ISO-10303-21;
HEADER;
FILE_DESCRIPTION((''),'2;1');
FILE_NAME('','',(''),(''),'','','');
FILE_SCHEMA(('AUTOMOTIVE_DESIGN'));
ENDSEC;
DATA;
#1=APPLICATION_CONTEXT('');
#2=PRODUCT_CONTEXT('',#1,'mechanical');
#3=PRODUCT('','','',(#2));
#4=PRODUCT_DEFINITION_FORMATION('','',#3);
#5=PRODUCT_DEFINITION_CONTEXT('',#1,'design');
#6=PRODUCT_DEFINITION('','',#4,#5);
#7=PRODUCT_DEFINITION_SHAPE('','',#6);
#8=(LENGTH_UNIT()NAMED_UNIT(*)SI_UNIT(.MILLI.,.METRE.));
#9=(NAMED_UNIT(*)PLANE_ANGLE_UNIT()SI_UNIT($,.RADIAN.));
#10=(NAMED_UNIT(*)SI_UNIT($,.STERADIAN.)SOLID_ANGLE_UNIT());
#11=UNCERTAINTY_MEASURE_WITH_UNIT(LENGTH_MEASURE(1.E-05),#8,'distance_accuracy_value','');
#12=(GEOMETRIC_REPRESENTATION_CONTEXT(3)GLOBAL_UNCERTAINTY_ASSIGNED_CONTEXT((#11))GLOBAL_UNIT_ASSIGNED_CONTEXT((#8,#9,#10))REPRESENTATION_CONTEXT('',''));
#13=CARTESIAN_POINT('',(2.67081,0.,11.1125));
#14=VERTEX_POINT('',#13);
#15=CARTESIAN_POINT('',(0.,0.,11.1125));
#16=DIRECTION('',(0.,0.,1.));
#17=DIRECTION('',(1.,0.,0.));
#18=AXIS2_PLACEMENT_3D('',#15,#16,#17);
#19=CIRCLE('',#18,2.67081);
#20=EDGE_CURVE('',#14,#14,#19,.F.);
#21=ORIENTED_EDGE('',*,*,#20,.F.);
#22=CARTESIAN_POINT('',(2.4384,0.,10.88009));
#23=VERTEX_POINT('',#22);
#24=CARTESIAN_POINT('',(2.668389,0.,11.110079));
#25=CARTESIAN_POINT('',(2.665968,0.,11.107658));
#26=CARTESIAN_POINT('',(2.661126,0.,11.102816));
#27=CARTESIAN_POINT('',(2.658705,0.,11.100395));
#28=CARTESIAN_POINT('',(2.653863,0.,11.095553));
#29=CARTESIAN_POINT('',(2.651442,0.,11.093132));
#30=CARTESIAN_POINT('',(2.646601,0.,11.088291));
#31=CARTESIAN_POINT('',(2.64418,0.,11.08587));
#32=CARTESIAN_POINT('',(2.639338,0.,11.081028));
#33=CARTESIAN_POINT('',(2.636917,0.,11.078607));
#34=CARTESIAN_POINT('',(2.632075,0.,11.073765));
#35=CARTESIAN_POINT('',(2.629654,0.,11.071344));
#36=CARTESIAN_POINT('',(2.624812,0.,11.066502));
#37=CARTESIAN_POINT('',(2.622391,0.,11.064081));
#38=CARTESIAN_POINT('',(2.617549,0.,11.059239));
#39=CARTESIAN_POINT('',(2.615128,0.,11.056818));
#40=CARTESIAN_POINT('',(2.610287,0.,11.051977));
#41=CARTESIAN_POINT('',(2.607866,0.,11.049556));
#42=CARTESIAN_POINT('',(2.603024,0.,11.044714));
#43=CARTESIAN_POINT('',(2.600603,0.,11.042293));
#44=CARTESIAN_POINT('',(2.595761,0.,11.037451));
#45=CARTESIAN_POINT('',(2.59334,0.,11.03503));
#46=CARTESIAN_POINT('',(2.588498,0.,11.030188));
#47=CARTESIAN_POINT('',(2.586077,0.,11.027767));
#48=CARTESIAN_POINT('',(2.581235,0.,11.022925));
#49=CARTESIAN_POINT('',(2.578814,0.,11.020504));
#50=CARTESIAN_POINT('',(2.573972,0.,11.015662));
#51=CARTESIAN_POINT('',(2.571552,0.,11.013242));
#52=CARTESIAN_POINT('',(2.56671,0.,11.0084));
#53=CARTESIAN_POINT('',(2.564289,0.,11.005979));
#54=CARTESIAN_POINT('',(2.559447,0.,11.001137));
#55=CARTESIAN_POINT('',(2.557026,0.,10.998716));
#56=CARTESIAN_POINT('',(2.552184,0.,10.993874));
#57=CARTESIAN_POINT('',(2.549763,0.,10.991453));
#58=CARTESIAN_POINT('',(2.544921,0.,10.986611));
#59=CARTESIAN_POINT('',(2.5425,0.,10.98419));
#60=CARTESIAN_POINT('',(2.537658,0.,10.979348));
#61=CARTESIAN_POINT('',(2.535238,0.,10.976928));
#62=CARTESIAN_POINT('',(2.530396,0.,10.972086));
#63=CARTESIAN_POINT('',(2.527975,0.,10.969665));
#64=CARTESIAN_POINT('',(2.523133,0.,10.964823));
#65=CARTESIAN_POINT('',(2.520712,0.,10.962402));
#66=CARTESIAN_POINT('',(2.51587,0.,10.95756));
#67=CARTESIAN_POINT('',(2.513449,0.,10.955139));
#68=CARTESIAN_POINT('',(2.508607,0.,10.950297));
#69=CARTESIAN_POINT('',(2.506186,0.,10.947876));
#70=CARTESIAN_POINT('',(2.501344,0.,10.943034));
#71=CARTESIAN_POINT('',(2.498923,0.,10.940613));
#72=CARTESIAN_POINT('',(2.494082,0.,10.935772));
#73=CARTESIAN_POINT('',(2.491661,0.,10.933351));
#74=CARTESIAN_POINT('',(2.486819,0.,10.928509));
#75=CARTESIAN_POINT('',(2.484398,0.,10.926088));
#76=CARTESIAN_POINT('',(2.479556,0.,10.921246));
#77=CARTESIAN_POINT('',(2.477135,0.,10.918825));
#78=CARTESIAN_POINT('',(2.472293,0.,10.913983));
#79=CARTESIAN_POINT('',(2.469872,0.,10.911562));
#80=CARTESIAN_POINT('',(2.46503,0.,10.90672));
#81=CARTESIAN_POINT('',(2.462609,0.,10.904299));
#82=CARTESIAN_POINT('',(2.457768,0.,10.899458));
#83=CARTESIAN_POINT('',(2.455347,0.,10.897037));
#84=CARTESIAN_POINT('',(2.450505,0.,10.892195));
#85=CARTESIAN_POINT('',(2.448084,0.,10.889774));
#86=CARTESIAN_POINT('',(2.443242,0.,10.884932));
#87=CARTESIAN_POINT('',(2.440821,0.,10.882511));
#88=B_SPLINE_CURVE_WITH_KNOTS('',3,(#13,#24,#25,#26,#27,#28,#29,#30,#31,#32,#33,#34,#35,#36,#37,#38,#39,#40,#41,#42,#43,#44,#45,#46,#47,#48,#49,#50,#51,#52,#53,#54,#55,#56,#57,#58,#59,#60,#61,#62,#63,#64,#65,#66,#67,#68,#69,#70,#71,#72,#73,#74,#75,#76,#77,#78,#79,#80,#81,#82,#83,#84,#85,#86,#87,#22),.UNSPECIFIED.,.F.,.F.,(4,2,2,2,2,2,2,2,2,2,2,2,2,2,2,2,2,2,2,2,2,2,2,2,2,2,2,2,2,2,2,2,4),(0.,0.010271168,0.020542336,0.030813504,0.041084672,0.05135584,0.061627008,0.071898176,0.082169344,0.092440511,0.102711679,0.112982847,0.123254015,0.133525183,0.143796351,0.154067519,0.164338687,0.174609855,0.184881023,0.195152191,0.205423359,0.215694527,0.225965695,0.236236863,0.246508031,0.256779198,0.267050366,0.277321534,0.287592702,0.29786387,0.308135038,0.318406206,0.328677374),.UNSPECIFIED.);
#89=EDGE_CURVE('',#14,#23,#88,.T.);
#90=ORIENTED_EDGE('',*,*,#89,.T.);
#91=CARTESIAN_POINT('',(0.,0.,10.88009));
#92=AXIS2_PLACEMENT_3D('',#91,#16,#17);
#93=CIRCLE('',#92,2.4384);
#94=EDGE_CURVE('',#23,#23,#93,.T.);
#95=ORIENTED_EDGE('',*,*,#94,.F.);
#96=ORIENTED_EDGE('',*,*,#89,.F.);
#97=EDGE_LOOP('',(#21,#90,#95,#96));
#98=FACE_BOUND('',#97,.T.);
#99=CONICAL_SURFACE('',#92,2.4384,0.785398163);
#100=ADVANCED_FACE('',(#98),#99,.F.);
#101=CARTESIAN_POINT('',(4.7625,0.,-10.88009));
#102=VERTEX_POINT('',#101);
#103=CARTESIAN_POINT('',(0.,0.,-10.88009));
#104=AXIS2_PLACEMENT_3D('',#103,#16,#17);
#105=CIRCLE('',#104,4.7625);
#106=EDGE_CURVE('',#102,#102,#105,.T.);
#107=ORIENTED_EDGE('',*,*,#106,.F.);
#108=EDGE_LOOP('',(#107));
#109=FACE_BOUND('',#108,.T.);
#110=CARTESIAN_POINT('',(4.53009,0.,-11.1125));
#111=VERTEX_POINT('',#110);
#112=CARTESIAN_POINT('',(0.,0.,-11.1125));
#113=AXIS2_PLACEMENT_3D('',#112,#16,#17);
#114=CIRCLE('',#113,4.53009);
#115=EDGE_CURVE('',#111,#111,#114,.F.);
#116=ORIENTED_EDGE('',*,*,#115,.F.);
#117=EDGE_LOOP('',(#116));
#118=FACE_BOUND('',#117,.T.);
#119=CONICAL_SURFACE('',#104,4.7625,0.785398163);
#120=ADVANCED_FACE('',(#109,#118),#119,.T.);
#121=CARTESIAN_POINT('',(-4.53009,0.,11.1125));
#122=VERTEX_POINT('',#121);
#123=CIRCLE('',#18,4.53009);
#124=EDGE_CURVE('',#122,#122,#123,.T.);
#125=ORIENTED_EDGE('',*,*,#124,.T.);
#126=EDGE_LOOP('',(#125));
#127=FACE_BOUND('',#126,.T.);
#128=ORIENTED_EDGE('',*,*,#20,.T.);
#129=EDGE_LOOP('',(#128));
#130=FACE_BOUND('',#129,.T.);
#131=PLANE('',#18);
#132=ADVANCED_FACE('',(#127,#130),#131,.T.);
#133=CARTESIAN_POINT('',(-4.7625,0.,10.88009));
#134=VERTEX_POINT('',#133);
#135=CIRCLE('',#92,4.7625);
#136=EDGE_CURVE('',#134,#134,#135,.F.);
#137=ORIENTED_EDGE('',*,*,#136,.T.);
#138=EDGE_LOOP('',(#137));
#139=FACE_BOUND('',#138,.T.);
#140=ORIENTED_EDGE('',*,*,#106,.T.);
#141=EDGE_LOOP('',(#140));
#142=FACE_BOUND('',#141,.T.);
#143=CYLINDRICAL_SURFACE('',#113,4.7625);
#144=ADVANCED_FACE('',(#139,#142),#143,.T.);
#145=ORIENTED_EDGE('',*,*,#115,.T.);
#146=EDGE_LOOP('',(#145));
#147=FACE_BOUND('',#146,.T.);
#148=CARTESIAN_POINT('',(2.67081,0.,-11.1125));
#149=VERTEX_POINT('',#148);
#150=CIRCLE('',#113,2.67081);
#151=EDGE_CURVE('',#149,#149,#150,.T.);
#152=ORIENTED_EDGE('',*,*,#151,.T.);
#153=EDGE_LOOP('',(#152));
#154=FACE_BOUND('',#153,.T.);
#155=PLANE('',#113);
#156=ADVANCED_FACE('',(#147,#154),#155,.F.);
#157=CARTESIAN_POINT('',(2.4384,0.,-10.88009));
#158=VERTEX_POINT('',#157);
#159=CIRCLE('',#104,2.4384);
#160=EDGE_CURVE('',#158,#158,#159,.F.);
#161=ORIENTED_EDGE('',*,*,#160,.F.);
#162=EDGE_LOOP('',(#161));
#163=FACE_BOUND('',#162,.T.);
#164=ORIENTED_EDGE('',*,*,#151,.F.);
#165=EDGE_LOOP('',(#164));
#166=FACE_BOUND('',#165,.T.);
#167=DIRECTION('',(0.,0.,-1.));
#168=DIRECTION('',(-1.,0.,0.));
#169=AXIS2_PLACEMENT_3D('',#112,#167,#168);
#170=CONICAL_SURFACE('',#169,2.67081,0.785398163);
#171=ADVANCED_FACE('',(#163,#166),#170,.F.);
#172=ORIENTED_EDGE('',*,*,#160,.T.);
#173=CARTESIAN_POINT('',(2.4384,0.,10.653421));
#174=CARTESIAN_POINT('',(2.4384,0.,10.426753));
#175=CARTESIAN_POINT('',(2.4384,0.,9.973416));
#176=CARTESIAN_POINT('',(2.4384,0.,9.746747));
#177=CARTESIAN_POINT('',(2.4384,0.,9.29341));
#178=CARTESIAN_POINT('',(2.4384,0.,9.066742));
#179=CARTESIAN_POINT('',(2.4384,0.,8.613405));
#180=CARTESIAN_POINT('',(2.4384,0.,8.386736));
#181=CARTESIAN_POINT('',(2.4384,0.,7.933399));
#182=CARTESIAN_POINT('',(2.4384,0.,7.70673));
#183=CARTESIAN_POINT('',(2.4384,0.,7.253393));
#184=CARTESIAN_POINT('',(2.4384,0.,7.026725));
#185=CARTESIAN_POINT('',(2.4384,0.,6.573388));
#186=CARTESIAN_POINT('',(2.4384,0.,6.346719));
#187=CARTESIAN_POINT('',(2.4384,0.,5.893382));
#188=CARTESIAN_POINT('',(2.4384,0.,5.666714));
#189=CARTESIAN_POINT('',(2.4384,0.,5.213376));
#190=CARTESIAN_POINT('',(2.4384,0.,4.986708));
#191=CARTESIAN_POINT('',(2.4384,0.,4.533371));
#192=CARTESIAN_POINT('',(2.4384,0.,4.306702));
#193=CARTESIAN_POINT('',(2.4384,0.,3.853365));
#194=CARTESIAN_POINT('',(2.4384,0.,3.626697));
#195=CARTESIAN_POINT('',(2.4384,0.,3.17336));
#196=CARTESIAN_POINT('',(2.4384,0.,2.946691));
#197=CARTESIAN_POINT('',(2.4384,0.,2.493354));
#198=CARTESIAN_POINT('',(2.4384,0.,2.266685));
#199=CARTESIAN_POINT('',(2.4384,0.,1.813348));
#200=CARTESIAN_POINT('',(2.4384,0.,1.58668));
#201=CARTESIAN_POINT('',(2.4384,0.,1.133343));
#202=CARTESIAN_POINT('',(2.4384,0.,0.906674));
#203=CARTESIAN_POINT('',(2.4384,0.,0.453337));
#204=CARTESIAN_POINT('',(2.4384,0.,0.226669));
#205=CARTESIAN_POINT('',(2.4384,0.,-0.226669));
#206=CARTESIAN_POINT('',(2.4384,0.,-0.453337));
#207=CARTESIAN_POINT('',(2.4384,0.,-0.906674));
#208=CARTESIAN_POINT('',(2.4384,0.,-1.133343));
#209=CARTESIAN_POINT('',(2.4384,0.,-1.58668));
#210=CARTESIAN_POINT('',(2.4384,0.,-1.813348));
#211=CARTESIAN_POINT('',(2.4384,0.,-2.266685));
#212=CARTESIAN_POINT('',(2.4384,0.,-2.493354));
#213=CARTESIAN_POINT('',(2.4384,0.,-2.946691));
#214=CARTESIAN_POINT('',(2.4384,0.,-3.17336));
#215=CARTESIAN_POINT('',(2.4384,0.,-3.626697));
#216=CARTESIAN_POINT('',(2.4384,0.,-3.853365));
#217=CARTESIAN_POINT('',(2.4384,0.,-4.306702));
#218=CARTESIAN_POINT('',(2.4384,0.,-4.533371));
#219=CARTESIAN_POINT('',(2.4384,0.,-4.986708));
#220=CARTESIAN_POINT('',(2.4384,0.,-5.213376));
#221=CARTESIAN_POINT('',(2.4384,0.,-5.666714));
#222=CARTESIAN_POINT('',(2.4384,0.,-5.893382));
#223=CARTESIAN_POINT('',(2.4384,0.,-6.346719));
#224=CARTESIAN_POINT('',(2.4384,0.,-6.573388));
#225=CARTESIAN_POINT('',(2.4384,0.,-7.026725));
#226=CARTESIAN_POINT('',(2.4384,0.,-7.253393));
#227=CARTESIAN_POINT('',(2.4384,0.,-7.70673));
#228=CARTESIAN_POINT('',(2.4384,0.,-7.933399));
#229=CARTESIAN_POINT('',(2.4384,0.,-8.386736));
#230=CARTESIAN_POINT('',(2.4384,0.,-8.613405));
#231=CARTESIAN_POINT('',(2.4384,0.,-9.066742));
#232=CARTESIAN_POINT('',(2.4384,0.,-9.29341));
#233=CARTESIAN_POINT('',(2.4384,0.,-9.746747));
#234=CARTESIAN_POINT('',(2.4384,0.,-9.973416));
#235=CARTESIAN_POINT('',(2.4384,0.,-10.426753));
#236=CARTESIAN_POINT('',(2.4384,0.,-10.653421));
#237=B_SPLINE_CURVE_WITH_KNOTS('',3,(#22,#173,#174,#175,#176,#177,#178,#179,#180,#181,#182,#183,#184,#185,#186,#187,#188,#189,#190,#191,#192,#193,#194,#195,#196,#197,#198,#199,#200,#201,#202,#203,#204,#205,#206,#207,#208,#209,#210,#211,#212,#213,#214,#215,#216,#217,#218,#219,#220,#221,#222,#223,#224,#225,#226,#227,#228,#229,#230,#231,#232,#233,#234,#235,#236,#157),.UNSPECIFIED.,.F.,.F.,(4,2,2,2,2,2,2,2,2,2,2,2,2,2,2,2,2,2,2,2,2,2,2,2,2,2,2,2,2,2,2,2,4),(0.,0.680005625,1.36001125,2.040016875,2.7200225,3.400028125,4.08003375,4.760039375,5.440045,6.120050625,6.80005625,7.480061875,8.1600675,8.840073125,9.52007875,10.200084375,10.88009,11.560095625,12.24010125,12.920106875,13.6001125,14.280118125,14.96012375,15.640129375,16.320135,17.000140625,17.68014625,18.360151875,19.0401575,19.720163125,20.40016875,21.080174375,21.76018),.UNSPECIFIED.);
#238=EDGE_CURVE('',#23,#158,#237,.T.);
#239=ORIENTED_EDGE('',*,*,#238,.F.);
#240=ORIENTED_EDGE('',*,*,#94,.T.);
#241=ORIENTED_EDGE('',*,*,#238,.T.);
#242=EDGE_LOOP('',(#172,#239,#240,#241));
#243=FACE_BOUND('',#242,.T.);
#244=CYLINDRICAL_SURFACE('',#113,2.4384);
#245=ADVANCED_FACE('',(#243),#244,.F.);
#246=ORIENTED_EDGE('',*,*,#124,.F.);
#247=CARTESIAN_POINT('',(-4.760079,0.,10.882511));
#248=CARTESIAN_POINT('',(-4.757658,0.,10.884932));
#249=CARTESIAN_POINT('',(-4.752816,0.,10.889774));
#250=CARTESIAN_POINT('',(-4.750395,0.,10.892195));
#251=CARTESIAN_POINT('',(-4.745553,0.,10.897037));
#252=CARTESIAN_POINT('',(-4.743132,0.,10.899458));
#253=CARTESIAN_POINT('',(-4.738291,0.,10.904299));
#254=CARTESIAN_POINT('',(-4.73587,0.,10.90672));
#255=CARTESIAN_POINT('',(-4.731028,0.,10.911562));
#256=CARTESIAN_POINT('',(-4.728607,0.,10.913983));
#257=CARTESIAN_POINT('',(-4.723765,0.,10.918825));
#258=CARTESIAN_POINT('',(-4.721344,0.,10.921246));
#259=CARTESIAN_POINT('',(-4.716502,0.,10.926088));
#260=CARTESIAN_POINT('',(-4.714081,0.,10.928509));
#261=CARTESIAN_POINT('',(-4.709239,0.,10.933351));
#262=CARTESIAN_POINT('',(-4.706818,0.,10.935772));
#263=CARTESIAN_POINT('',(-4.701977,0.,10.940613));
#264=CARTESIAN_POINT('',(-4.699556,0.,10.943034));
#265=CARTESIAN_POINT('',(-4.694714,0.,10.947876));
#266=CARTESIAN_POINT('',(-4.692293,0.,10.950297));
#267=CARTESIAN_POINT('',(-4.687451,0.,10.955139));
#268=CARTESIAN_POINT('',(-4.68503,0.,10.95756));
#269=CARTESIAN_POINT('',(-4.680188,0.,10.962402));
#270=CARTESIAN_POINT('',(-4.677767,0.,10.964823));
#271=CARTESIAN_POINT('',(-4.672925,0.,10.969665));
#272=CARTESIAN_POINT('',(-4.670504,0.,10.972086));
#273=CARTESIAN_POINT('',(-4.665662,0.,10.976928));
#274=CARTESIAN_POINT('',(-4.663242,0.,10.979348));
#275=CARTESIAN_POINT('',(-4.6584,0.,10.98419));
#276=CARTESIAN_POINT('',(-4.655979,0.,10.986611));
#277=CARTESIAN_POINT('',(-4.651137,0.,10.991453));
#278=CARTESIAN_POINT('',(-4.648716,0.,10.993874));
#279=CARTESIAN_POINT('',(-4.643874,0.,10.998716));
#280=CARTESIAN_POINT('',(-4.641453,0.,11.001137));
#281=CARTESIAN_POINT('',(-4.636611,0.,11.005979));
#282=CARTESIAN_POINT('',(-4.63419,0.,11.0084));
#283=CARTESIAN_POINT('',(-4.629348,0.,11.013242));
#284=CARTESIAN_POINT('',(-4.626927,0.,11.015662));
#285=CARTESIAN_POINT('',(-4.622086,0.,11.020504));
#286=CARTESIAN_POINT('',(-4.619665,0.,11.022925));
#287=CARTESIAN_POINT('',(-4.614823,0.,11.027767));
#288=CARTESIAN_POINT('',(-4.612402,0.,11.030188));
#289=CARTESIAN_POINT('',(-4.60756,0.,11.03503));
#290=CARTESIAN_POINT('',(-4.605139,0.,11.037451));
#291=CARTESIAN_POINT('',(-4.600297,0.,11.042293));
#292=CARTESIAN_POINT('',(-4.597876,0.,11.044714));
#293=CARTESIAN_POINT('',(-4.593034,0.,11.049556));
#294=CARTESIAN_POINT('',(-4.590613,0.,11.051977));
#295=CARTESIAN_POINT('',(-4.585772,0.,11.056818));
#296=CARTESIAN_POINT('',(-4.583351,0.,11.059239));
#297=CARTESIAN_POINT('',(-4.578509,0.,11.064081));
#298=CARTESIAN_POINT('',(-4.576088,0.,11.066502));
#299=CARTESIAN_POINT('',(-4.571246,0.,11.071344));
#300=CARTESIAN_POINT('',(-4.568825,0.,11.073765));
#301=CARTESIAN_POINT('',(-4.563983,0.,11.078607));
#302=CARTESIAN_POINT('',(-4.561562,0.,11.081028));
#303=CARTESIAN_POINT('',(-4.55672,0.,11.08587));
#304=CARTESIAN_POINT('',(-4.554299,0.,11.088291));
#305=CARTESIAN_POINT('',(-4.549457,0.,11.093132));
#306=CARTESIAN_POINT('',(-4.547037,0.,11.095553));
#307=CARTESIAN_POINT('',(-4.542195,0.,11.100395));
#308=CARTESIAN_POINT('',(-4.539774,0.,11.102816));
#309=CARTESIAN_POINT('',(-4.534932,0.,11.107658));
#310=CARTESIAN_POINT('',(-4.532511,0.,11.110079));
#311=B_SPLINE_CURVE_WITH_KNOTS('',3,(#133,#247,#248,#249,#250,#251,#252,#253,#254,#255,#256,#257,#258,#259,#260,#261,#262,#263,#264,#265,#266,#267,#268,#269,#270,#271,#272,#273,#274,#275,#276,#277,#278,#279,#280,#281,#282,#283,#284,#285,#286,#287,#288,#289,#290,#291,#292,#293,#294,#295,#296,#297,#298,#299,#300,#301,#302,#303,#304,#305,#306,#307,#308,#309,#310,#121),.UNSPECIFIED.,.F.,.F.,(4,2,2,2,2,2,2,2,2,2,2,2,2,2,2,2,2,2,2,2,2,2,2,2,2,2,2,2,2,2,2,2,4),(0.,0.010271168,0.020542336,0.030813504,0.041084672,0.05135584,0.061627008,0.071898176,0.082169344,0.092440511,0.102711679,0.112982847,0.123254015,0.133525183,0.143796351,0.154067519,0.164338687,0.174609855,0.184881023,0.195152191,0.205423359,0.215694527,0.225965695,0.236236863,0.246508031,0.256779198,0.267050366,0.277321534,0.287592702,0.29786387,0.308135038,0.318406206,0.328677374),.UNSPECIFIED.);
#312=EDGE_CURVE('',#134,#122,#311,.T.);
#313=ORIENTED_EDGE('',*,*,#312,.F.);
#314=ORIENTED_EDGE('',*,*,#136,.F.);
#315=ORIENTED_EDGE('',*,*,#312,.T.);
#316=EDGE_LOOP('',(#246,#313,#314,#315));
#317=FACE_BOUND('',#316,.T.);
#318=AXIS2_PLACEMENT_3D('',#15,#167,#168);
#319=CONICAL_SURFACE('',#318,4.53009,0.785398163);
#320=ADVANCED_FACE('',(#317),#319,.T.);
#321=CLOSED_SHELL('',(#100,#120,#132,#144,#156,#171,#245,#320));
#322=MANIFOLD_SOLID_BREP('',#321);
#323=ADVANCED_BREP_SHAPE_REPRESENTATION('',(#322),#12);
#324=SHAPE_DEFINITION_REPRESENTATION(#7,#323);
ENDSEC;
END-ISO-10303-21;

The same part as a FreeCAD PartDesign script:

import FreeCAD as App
import Part
import Sketcher
from FreeCAD import Vector
Q = App.Units.Quantity


def edges_at(feature, points):
    """Names of the edges that pass closest to the given points."""
    edges = feature.Shape.Edges
    near = lambda p: min(range(len(edges)), key=lambda i: edges[i].distToShape(Part.Vertex(*p))[0])
    return sorted({f"Edge{near(p) + 1}" for p in points})

doc = App.newDocument("Part")
params = doc.addObject("Spreadsheet::Sheet", "Params")
for row, (alias, value) in enumerate([
    ("sketch1_diameter", "0.375 in"),
    ("sketch1_diameter2", "0.192 in"),
    ("pad1_length", "0.4375 in"),
    ("pad1_length2", "0.4375 in"),
    ("chamfer_size", "0.23241 mm"),
], start=1):
    params.set(f"A{row}", alias)
    params.set(f"B{row}", "=" + value)
    params.setAlias(f"B{row}", alias)

body = doc.addObject("PartDesign::Body", "Body")

# Sketch on XY plane
sketch1 = doc.addObject("Sketcher::SketchObject", "Sketch")
body.addObject(sketch1)
sketch1.AttachmentSupport = (doc.XY_Plane, [""])
sketch1.MapMode = "FlatFace"
sketch1.addGeometry(Part.Circle(Vector(0, 0, 0), Vector(0, 0, 1), 4.8), False)
sketch1.addGeometry(Part.Circle(Vector(0, 0, 0), Vector(0, 0, 1), 2.4), False)
sketch1.addConstraint(Sketcher.Constraint("Coincident", 0, 3, -1, 1))
sketch1.addConstraint(Sketcher.Constraint("Coincident", 1, 3, -1, 1))
sketch1.addConstraint(Sketcher.Constraint("Diameter", 0, Q("0.375 in")))
sketch1.addConstraint(Sketcher.Constraint("Diameter", 1, Q("0.192 in")))
sketch1.setExpression("Constraints[2]", "Params.sketch1_diameter")
sketch1.setExpression("Constraints[3]", "Params.sketch1_diameter2")
pad1 = doc.addObject("PartDesign::Pad", "Pad")
body.addObject(pad1)
pad1.Profile = sketch1
pad1.Type = "TwoLengths"
pad1.setExpression("Length", "Params.pad1_length")
pad1.setExpression("Length2", "Params.pad1_length2")
doc.recompute()

chamfer = doc.addObject("PartDesign::Chamfer", "Chamfer")
body.addObject(chamfer)
chamfer.Base = (pad1, edges_at(pad1, [
    (-4.763, 0, -11.113),
    (-2.438, 0, -11.113),
    (-4.763, 0, 11.113),
    (-2.438, 0, 11.113),
]))
chamfer.setExpression("Size", "Params.chamfer_size")

doc.recompute()
